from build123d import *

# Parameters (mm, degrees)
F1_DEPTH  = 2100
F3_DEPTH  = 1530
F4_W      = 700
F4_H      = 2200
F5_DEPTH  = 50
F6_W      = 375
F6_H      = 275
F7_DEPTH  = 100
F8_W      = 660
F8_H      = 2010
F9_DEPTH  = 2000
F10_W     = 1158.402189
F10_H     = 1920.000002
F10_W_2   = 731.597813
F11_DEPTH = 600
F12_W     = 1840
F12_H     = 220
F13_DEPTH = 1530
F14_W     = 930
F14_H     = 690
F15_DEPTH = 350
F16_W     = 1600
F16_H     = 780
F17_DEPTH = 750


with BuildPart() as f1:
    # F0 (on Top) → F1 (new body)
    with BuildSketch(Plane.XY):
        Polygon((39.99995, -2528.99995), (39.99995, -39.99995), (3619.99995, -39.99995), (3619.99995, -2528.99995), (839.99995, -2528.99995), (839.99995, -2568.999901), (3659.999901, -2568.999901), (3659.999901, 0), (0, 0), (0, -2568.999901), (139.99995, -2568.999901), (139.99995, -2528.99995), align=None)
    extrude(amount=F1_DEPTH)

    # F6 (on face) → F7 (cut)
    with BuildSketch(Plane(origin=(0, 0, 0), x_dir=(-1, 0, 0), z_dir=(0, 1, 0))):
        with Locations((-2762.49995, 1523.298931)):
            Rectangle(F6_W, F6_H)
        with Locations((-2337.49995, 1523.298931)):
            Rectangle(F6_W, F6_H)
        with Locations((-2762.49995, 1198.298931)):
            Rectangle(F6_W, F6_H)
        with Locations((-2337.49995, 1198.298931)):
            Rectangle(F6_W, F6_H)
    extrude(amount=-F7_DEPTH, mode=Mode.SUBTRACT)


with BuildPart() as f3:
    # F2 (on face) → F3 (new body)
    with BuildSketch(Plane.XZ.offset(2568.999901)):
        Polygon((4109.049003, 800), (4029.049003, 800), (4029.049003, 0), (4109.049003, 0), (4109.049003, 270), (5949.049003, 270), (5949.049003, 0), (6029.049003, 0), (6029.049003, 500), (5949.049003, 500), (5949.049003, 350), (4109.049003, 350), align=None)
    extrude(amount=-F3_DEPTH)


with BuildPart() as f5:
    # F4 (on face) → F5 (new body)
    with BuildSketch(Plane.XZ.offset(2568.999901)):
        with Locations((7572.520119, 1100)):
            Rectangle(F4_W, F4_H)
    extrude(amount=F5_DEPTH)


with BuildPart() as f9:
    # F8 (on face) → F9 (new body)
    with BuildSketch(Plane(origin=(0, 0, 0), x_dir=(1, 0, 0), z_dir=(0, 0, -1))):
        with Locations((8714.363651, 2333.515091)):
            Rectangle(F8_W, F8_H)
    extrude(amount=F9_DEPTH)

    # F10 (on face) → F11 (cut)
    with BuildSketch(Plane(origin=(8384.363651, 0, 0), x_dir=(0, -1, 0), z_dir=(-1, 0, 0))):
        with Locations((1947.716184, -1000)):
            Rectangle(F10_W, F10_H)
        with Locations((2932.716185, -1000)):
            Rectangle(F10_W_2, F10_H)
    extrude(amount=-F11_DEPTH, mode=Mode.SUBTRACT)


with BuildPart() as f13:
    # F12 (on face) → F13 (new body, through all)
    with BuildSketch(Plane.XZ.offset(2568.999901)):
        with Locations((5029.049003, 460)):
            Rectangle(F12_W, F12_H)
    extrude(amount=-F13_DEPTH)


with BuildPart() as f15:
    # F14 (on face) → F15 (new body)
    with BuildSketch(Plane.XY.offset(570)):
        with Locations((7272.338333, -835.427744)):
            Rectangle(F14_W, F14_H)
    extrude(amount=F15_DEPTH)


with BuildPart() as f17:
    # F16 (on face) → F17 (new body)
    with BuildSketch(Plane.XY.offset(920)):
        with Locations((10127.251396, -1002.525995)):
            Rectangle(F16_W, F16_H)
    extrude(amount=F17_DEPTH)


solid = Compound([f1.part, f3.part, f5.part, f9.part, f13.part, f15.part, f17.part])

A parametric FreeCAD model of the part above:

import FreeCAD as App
import Part
import Sketcher
from FreeCAD import Vector

doc = App.newDocument("Part")
body = doc.addObject("PartDesign::Body", "Body")

sketch1 = body.newObject("Sketcher::SketchObject", "Sketch")
sketch1.AttachmentSupport = (doc.getObject("XY_Plane"), [""])
sketch1.MapMode = "FlatFace"
sketch1.addGeometry(Part.LineSegment(Vector(39.99995, -2528.99995, 0), Vector(39.99995, -39.99995, 0)), False)
sketch1.addGeometry(Part.LineSegment(Vector(39.99995, -39.99995, 0), Vector(3619.99995, -39.99995, 0)), False)
sketch1.addGeometry(Part.LineSegment(Vector(3619.99995, -39.99995, 0), Vector(3619.99995, -2528.99995, 0)), False)
sketch1.addGeometry(Part.LineSegment(Vector(3619.99995, -2528.99995, 0), Vector(839.99995, -2528.99995, 0)), False)
sketch1.addGeometry(Part.LineSegment(Vector(839.99995, -2528.99995, 0), Vector(839.99995, -2568.999901, 0)), False)
sketch1.addGeometry(Part.LineSegment(Vector(839.99995, -2568.999901, 0), Vector(3659.999901, -2568.999901, 0)), False)
sketch1.addGeometry(Part.LineSegment(Vector(3659.999901, -2568.999901, 0), Vector(3659.999901, 0, 0)), False)
sketch1.addGeometry(Part.LineSegment(Vector(3659.999901, 0, 0), Vector(0, 0, 0)), False)
sketch1.addGeometry(Part.LineSegment(Vector(0, 0, 0), Vector(0, -2568.999901, 0)), False)
sketch1.addGeometry(Part.LineSegment(Vector(0, -2568.999901, 0), Vector(139.99995, -2568.999901, 0)), False)
sketch1.addGeometry(Part.LineSegment(Vector(139.99995, -2568.999901, 0), Vector(139.99995, -2528.99995, 0)), False)
sketch1.addGeometry(Part.LineSegment(Vector(139.99995, -2528.99995, 0), Vector(39.99995, -2528.99995, 0)), False)
sketch1.addConstraint(Sketcher.Constraint("Coincident", 0, 2, 1, 1))
sketch1.addConstraint(Sketcher.Constraint("Coincident", 1, 2, 2, 1))
sketch1.addConstraint(Sketcher.Constraint("Coincident", 2, 2, 3, 1))
sketch1.addConstraint(Sketcher.Constraint("Coincident", 3, 2, 4, 1))
sketch1.addConstraint(Sketcher.Constraint("Coincident", 4, 2, 5, 1))
sketch1.addConstraint(Sketcher.Constraint("Coincident", 5, 2, 6, 1))
sketch1.addConstraint(Sketcher.Constraint("Coincident", 6, 2, 7, 1))
sketch1.addConstraint(Sketcher.Constraint("Coincident", 7, 2, 8, 1))
sketch1.addConstraint(Sketcher.Constraint("Coincident", 8, 2, 9, 1))
sketch1.addConstraint(Sketcher.Constraint("Coincident", 9, 2, 10, 1))
sketch1.addConstraint(Sketcher.Constraint("Coincident", 10, 2, 11, 1))
sketch1.addConstraint(Sketcher.Constraint("Coincident", 11, 2, 0, 1))
sketch1.addConstraint(Sketcher.Constraint("Vertical", 0))
sketch1.addConstraint(Sketcher.Constraint("Horizontal", 1))
sketch1.addConstraint(Sketcher.Constraint("Vertical", 2))
sketch1.addConstraint(Sketcher.Constraint("Horizontal", 3))
sketch1.addConstraint(Sketcher.Constraint("Vertical", 4))
sketch1.addConstraint(Sketcher.Constraint("Horizontal", 5))
sketch1.addConstraint(Sketcher.Constraint("Vertical", 6))
sketch1.addConstraint(Sketcher.Constraint("Horizontal", 7))
sketch1.addConstraint(Sketcher.Constraint("Vertical", 8))
sketch1.addConstraint(Sketcher.Constraint("Horizontal", 9))
sketch1.addConstraint(Sketcher.Constraint("Vertical", 10))
sketch1.addConstraint(Sketcher.Constraint("Horizontal", 11))
sketch1.addConstraint(Sketcher.Constraint("Coincident", 7, 2, -1, 1))
sketch1.addConstraint(Sketcher.Constraint("Horizontal", 5, 2, 8, 2))
sketch1.addConstraint(Sketcher.Constraint("Horizontal", 3, 2, 10, 2))
sketch1.addConstraint(Sketcher.Constraint("DistanceX", 1, 1, 1, 2, 3580.0))
sketch1.addConstraint(Sketcher.Constraint("DistanceX", 3, 2, 3, 1, 2780.0))
sketch1.addConstraint(Sketcher.Constraint("DistanceX", 11, 2, 11, 1, 100.0))
sketch1.addConstraint(Sketcher.Constraint("DistanceY", 0, 1, 0, 2, 2489.0))
sketch1.addConstraint(Sketcher.Constraint("DistanceX", 7, 2, 7, 1, 3659.999901))
sketch1.addConstraint(Sketcher.Constraint("DistanceY", 6, 1, 6, 2, 2568.999901))
sketch1.addConstraint(Sketcher.Constraint("DistanceX", 5, 1, 5, 2, 2819.999951))
sketch1.addConstraint(Sketcher.Constraint("DistanceY", 4, 2, 4, 1, 39.999951))
pad1 = body.newObject("PartDesign::Pad", "Pad")
pad1.Profile = sketch1
pad1.Length = 2100

sketch2 = body.newObject("Sketcher::SketchObject", "Sketch001")
sketch2.AttachmentSupport = (doc.getObject("XZ_Plane"), [""])
sketch2.MapMode = "FlatFace"
sketch2.addGeometry(Part.LineSegment(Vector(2949.99995, 1660.798931, 0), Vector(2949.99995, 1385.798931, 0)), False)
sketch2.addGeometry(Part.LineSegment(Vector(2949.99995, 1385.798931, 0), Vector(2574.99995, 1385.798931, 0)), False)
sketch2.addGeometry(Part.LineSegment(Vector(2574.99995, 1385.798931, 0), Vector(2574.99995, 1660.798931, 0)), False)
sketch2.addGeometry(Part.LineSegment(Vector(2574.99995, 1660.798931, 0), Vector(2949.99995, 1660.798931, 0)), False)
sketch2.addGeometry(Part.LineSegment(Vector(2524.99995, 1660.798931, 0), Vector(2524.99995, 1385.798931, 0)), False)
sketch2.addGeometry(Part.LineSegment(Vector(2524.99995, 1385.798931, 0), Vector(2149.99995, 1385.798931, 0)), False)
sketch2.addGeometry(Part.LineSegment(Vector(2149.99995, 1385.798931, 0), Vector(2149.99995, 1660.798931, 0)), False)
sketch2.addGeometry(Part.LineSegment(Vector(2149.99995, 1660.798931, 0), Vector(2524.99995, 1660.798931, 0)), False)
sketch2.addGeometry(Part.LineSegment(Vector(2949.99995, 1335.798931, 0), Vector(2949.99995, 1060.798931, 0)), False)
sketch2.addGeometry(Part.LineSegment(Vector(2949.99995, 1060.798931, 0), Vector(2574.99995, 1060.798931, 0)), False)
sketch2.addGeometry(Part.LineSegment(Vector(2574.99995, 1060.798931, 0), Vector(2574.99995, 1335.798931, 0)), False)
sketch2.addGeometry(Part.LineSegment(Vector(2574.99995, 1335.798931, 0), Vector(2949.99995, 1335.798931, 0)), False)
sketch2.addGeometry(Part.LineSegment(Vector(2524.99995, 1335.798931, 0), Vector(2524.99995, 1060.798931, 0)), False)
sketch2.addGeometry(Part.LineSegment(Vector(2524.99995, 1060.798931, 0), Vector(2149.99995, 1060.798931, 0)), False)
sketch2.addGeometry(Part.LineSegment(Vector(2149.99995, 1060.798931, 0), Vector(2149.99995, 1335.798931, 0)), False)
sketch2.addGeometry(Part.LineSegment(Vector(2149.99995, 1335.798931, 0), Vector(2524.99995, 1335.798931, 0)), False)
sketch2.addConstraint(Sketcher.Constraint("Coincident", 0, 2, 1, 1))
sketch2.addConstraint(Sketcher.Constraint("Coincident", 1, 2, 2, 1))
sketch2.addConstraint(Sketcher.Constraint("Coincident", 2, 2, 3, 1))
sketch2.addConstraint(Sketcher.Constraint("Coincident", 3, 2, 0, 1))
sketch2.addConstraint(Sketcher.Constraint("Coincident", 4, 2, 5, 1))
sketch2.addConstraint(Sketcher.Constraint("Coincident", 5, 2, 6, 1))
sketch2.addConstraint(Sketcher.Constraint("Coincident", 6, 2, 7, 1))
sketch2.addConstraint(Sketcher.Constraint("Coincident", 7, 2, 4, 1))
sketch2.addConstraint(Sketcher.Constraint("Coincident", 8, 2, 9, 1))
sketch2.addConstraint(Sketcher.Constraint("Coincident", 9, 2, 10, 1))
sketch2.addConstraint(Sketcher.Constraint("Coincident", 10, 2, 11, 1))
sketch2.addConstraint(Sketcher.Constraint("Coincident", 11, 2, 8, 1))
sketch2.addConstraint(Sketcher.Constraint("Coincident", 12, 2, 13, 1))
sketch2.addConstraint(Sketcher.Constraint("Coincident", 13, 2, 14, 1))
sketch2.addConstraint(Sketcher.Constraint("Coincident", 14, 2, 15, 1))
sketch2.addConstraint(Sketcher.Constraint("Coincident", 15, 2, 12, 1))
sketch2.addConstraint(Sketcher.Constraint("Vertical", 0))
sketch2.addConstraint(Sketcher.Constraint("Horizontal", 1))
sketch2.addConstraint(Sketcher.Constraint("Vertical", 2))
sketch2.addConstraint(Sketcher.Constraint("Horizontal", 3))
sketch2.addConstraint(Sketcher.Constraint("Vertical", 4))
sketch2.addConstraint(Sketcher.Constraint("Horizontal", 5))
sketch2.addConstraint(Sketcher.Constraint("Vertical", 6))
sketch2.addConstraint(Sketcher.Constraint("Horizontal", 7))
sketch2.addConstraint(Sketcher.Constraint("Vertical", 8))
sketch2.addConstraint(Sketcher.Constraint("Horizontal", 9))
sketch2.addConstraint(Sketcher.Constraint("Vertical", 10))
sketch2.addConstraint(Sketcher.Constraint("Horizontal", 11))
sketch2.addConstraint(Sketcher.Constraint("Vertical", 12))
sketch2.addConstraint(Sketcher.Constraint("Horizontal", 13))
sketch2.addConstraint(Sketcher.Constraint("Vertical", 14))
sketch2.addConstraint(Sketcher.Constraint("Horizontal", 15))
sketch2.addConstraint(Sketcher.Constraint("Horizontal", 1, 2, 4, 2))
sketch2.addConstraint(Sketcher.Constraint("Horizontal", 3, 2, 6, 2))
sketch2.addConstraint(Sketcher.Constraint("Horizontal", 9, 2, 12, 2))
sketch2.addConstraint(Sketcher.Constraint("Horizontal", 11, 2, 14, 2))
sketch2.addConstraint(Sketcher.Constraint("Vertical", 3, 2, 8, 2))
sketch2.addConstraint(Sketcher.Constraint("Vertical", 2, 2, 9, 2))
sketch2.addConstraint(Sketcher.Constraint("Vertical", 7, 2, 12, 2))
sketch2.addConstraint(Sketcher.Constraint("Vertical", 6, 2, 13, 2))
sketch2.addConstraint(Sketcher.Constraint("Equal", 3, 5))
sketch2.addConstraint(Sketcher.Constraint("Equal", 6, 8))
sketch2.addConstraint(Sketcher.Constraint("DistanceX", 1, 2, 1, 1, 375.0))
sketch2.addConstraint(Sketcher.Constraint("DistanceY", 0, 2, 0, 1, 275.0))
sketch2.addConstraint(Sketcher.Constraint("DistanceX", 4, 2, 1, 2, 50.0))
sketch2.addConstraint(Sketcher.Constraint("DistanceY", 8, 2, 0, 2, 325.0))
sketch2.addConstraint(Sketcher.Constraint("DistanceX", -1, 1, 0, 2, 2949.99995))
sketch2.addConstraint(Sketcher.Constraint("DistanceY", -1, 1, 0, 2, 1385.798931))
pocket1 = body.newObject("PartDesign::Pocket", "Pocket")
pocket1.Profile = sketch2
pocket1.Length = 100
pocket1.Reversed = True
body2 = doc.addObject("PartDesign::Body", "Body001")

sketch3 = body2.newObject("Sketcher::SketchObject", "Sketch002")
sketch3.AttachmentSupport = (doc.getObject("XZ_Plane001"), [""])
sketch3.MapMode = "FlatFace"
sketch3.AttachmentOffset = App.Placement(Vector(0, 0, 2568.999901), App.Rotation())
sketch3.addGeometry(Part.LineSegment(Vector(4109.049003, 800, 0), Vector(4029.049003, 800, 0)), False)
sketch3.addGeometry(Part.LineSegment(Vector(4029.049003, 800, 0), Vector(4029.049003, 0, 0)), False)
sketch3.addGeometry(Part.LineSegment(Vector(4029.049003, 0, 0), Vector(4109.049003, 0, 0)), False)
sketch3.addGeometry(Part.LineSegment(Vector(4109.049003, 0, 0), Vector(4109.049003, 270, 0)), False)
sketch3.addGeometry(Part.LineSegment(Vector(4109.049003, 270, 0), Vector(5949.049003, 270, 0)), False)
sketch3.addGeometry(Part.LineSegment(Vector(5949.049003, 270, 0), Vector(5949.049003, 0, 0)), False)
sketch3.addGeometry(Part.LineSegment(Vector(5949.049003, 0, 0), Vector(6029.049003, 0, 0)), False)
sketch3.addGeometry(Part.LineSegment(Vector(6029.049003, 0, 0), Vector(6029.049003, 500, 0)), False)
sketch3.addGeometry(Part.LineSegment(Vector(6029.049003, 500, 0), Vector(5949.049003, 500, 0)), False)
sketch3.addGeometry(Part.LineSegment(Vector(5949.049003, 500, 0), Vector(5949.049003, 350, 0)), False)
sketch3.addGeometry(Part.LineSegment(Vector(5949.049003, 350, 0), Vector(4109.049003, 350, 0)), False)
sketch3.addGeometry(Part.LineSegment(Vector(4109.049003, 350, 0), Vector(4109.049003, 800, 0)), False)
sketch3.addConstraint(Sketcher.Constraint("Coincident", 0, 2, 1, 1))
sketch3.addConstraint(Sketcher.Constraint("Coincident", 1, 2, 2, 1))
sketch3.addConstraint(Sketcher.Constraint("Coincident", 2, 2, 3, 1))
sketch3.addConstraint(Sketcher.Constraint("Coincident", 3, 2, 4, 1))
sketch3.addConstraint(Sketcher.Constraint("Coincident", 4, 2, 5, 1))
sketch3.addConstraint(Sketcher.Constraint("Coincident", 5, 2, 6, 1))
sketch3.addConstraint(Sketcher.Constraint("Coincident", 6, 2, 7, 1))
sketch3.addConstraint(Sketcher.Constraint("Coincident", 7, 2, 8, 1))
sketch3.addConstraint(Sketcher.Constraint("Coincident", 8, 2, 9, 1))
sketch3.addConstraint(Sketcher.Constraint("Coincident", 9, 2, 10, 1))
sketch3.addConstraint(Sketcher.Constraint("Coincident", 10, 2, 11, 1))
sketch3.addConstraint(Sketcher.Constraint("Coincident", 11, 2, 0, 1))
sketch3.addConstraint(Sketcher.Constraint("Horizontal", 0))
sketch3.addConstraint(Sketcher.Constraint("Vertical", 1))
sketch3.addConstraint(Sketcher.Constraint("Horizontal", 2))
sketch3.addConstraint(Sketcher.Constraint("Vertical", 3))
sketch3.addConstraint(Sketcher.Constraint("Horizontal", 4))
sketch3.addConstraint(Sketcher.Constraint("Vertical", 5))
sketch3.addConstraint(Sketcher.Constraint("Horizontal", 6))
sketch3.addConstraint(Sketcher.Constraint("Vertical", 7))
sketch3.addConstraint(Sketcher.Constraint("Horizontal", 8))
sketch3.addConstraint(Sketcher.Constraint("Vertical", 9))
sketch3.addConstraint(Sketcher.Constraint("Horizontal", 10))
sketch3.addConstraint(Sketcher.Constraint("Vertical", 11))
sketch3.addConstraint(Sketcher.Constraint("PointOnObject", 1, 2, -1))
sketch3.addConstraint(Sketcher.Constraint("PointOnObject", 5, 2, -1))
sketch3.addConstraint(Sketcher.Constraint("Vertical", 5, 2, 8, 2))
sketch3.addConstraint(Sketcher.Constraint("Vertical", 3, 2, 10, 2))
sketch3.addConstraint(Sketcher.Constraint("Equal", 2, 6))
sketch3.addConstraint(Sketcher.Constraint("DistanceX", 0, 2, 0, 1, 80.0))
sketch3.addConstraint(Sketcher.Constraint("DistanceX", 4, 1, 4, 2, 1840.0))
sketch3.addConstraint(Sketcher.Constraint("DistanceY", 1, 2, 1, 1, 800.0))
sketch3.addConstraint(Sketcher.Constraint("DistanceY", 3, 1, 3, 2, 270.0))
sketch3.addConstraint(Sketcher.Constraint("DistanceY", 7, 1, 7, 2, 500.0))
sketch3.addConstraint(Sketcher.Constraint("DistanceY", 9, 2, 9, 1, 150.0))
sketch3.addConstraint(Sketcher.Constraint("DistanceX", -1, 1, 0, 2, 4029.049003))
pad2 = body2.newObject("PartDesign::Pad", "Pad001")
pad2.Profile = sketch3
pad2.Length = 1530
pad2.Reversed = True
body3 = doc.addObject("PartDesign::Body", "Body002")

sketch4 = body3.newObject("Sketcher::SketchObject", "Sketch003")
sketch4.AttachmentSupport = (doc.getObject("XZ_Plane002"), [""])
sketch4.MapMode = "FlatFace"
sketch4.AttachmentOffset = App.Placement(Vector(0, 0, 2568.999901), App.Rotation())
sketch4.addGeometry(Part.LineSegment(Vector(7222.520119, 2200, 0), Vector(7222.520119, 0, 0)), False)
sketch4.addGeometry(Part.LineSegment(Vector(7222.520119, 0, 0), Vector(7922.520119, 0, 0)), False)
sketch4.addGeometry(Part.LineSegment(Vector(7922.520119, 0, 0), Vector(7922.520119, 2200, 0)), False)
sketch4.addGeometry(Part.LineSegment(Vector(7922.520119, 2200, 0), Vector(7222.520119, 2200, 0)), False)
sketch4.addConstraint(Sketcher.Constraint("Coincident", 0, 2, 1, 1))
sketch4.addConstraint(Sketcher.Constraint("Coincident", 1, 2, 2, 1))
sketch4.addConstraint(Sketcher.Constraint("Coincident", 2, 2, 3, 1))
sketch4.addConstraint(Sketcher.Constraint("Coincident", 3, 2, 0, 1))
sketch4.addConstraint(Sketcher.Constraint("Vertical", 0))
sketch4.addConstraint(Sketcher.Constraint("Horizontal", 1))
sketch4.addConstraint(Sketcher.Constraint("Vertical", 2))
sketch4.addConstraint(Sketcher.Constraint("Horizontal", 3))
sketch4.addConstraint(Sketcher.Constraint("PointOnObject", 0, 2, -1))
sketch4.addConstraint(Sketcher.Constraint("DistanceX", 1, 1, 1, 2, 700.0))
sketch4.addConstraint(Sketcher.Constraint("DistanceY", 0, 2, 0, 1, 2200.0))
sketch4.addConstraint(Sketcher.Constraint("DistanceX", -1, 1, 0, 2, 7222.520119))
pad3 = body3.newObject("PartDesign::Pad", "Pad002")
pad3.Profile = sketch4
pad3.Length = 50
body4 = doc.addObject("PartDesign::Body", "Body003")

sketch5 = body4.newObject("Sketcher::SketchObject", "Sketch004")
sketch5.AttachmentSupport = (doc.getObject("XY_Plane003"), [""])
sketch5.MapMode = "FlatFace"
sketch5.addGeometry(Part.LineSegment(Vector(8384.363651, -3338.515091, 0), Vector(8384.363651, -1328.515091, 0)), False)
sketch5.addGeometry(Part.LineSegment(Vector(8384.363651, -1328.515091, 0), Vector(9044.363651, -1328.515091, 0)), False)
sketch5.addGeometry(Part.LineSegment(Vector(9044.363651, -1328.515091, 0), Vector(9044.363651, -3338.515091, 0)), False)
sketch5.addGeometry(Part.LineSegment(Vector(9044.363651, -3338.515091, 0), Vector(8384.363651, -3338.515091, 0)), False)
sketch5.addConstraint(Sketcher.Constraint("Coincident", 0, 2, 1, 1))
sketch5.addConstraint(Sketcher.Constraint("Coincident", 1, 2, 2, 1))
sketch5.addConstraint(Sketcher.Constraint("Coincident", 2, 2, 3, 1))
sketch5.addConstraint(Sketcher.Constraint("Coincident", 3, 2, 0, 1))
sketch5.addConstraint(Sketcher.Constraint("Vertical", 0))
sketch5.addConstraint(Sketcher.Constraint("Horizontal", 1))
sketch5.addConstraint(Sketcher.Constraint("Vertical", 2))
sketch5.addConstraint(Sketcher.Constraint("Horizontal", 3))
sketch5.addConstraint(Sketcher.Constraint("DistanceX", 1, 1, 1, 2, 660.0))
sketch5.addConstraint(Sketcher.Constraint("DistanceY", 0, 1, 0, 2, 2010.0))
sketch5.addConstraint(Sketcher.Constraint("DistanceX", -1, 1, 0, 2, 8384.363651))
sketch5.addConstraint(Sketcher.Constraint("DistanceY", 0, 2, -1, 1, 1328.515091))
pad4 = body4.newObject("PartDesign::Pad", "Pad003")
pad4.Profile = sketch5
pad4.Length = 2000
pad4.Reversed = True

sketch6 = body4.newObject("Sketcher::SketchObject", "Sketch005")
sketch6.AttachmentSupport = (doc.getObject("YZ_Plane003"), [""])
sketch6.MapMode = "FlatFace"
sketch6.AttachmentOffset = App.Placement(Vector(0, 0, 8384.363651), App.Rotation())
sketch6.addGeometry(Part.LineSegment(Vector(-1368.515089, -39.999999, 0), Vector(-1368.515089, -1960.000001, 0)), False)
sketch6.addGeometry(Part.LineSegment(Vector(-1368.515089, -1960.000001, 0), Vector(-2526.917279, -1960.000001, 0)), False)
sketch6.addGeometry(Part.LineSegment(Vector(-2526.917279, -1960.000001, 0), Vector(-2526.917279, -39.999999, 0)), False)
sketch6.addGeometry(Part.LineSegment(Vector(-2526.917279, -39.999999, 0), Vector(-1368.515089, -39.999999, 0)), False)
sketch6.addGeometry(Part.LineSegment(Vector(-2566.917279, -39.999999, 0), Vector(-2566.917279, -1960.000001, 0)), False)
sketch6.addGeometry(Part.LineSegment(Vector(-2566.917279, -1960.000001, 0), Vector(-3298.515091, -1960.000001, 0)), False)
sketch6.addGeometry(Part.LineSegment(Vector(-3298.515091, -1960.000001, 0), Vector(-3298.515091, -39.999999, 0)), False)
sketch6.addGeometry(Part.LineSegment(Vector(-3298.515091, -39.999999, 0), Vector(-2566.917279, -39.999999, 0)), False)
sketch6.addConstraint(Sketcher.Constraint("Coincident", 0, 2, 1, 1))
sketch6.addConstraint(Sketcher.Constraint("Coincident", 1, 2, 2, 1))
sketch6.addConstraint(Sketcher.Constraint("Coincident", 2, 2, 3, 1))
sketch6.addConstraint(Sketcher.Constraint("Coincident", 3, 2, 0, 1))
sketch6.addConstraint(Sketcher.Constraint("Coincident", 4, 2, 5, 1))
sketch6.addConstraint(Sketcher.Constraint("Coincident", 5, 2, 6, 1))
sketch6.addConstraint(Sketcher.Constraint("Coincident", 6, 2, 7, 1))
sketch6.addConstraint(Sketcher.Constraint("Coincident", 7, 2, 4, 1))
sketch6.addConstraint(Sketcher.Constraint("Vertical", 0))
sketch6.addConstraint(Sketcher.Constraint("Horizontal", 1))
sketch6.addConstraint(Sketcher.Constraint("Vertical", 2))
sketch6.addConstraint(Sketcher.Constraint("Horizontal", 3))
sketch6.addConstraint(Sketcher.Constraint("Vertical", 4))
sketch6.addConstraint(Sketcher.Constraint("Horizontal", 5))
sketch6.addConstraint(Sketcher.Constraint("Vertical", 6))
sketch6.addConstraint(Sketcher.Constraint("Horizontal", 7))
sketch6.addConstraint(Sketcher.Constraint("Horizontal", 1, 2, 4, 2))
sketch6.addConstraint(Sketcher.Constraint("Horizontal", 3, 2, 6, 2))
sketch6.addConstraint(Sketcher.Constraint("DistanceY", 0, 2, -1, 1, 1960.000001))
sketch6.addConstraint(Sketcher.Constraint("DistanceY", 2, 2, -1, 1, 39.999999))
sketch6.addConstraint(Sketcher.Constraint("DistanceX", 4, 2, 1, 2, 40.0))
sketch6.addConstraint(Sketcher.Constraint("DistanceX", 5, 2, 0, 2, 1930.000002))
sketch6.addConstraint(Sketcher.Constraint("DistanceX", 1, 2, 1, 1, 1158.402189))
sketch6.addConstraint(Sketcher.Constraint("DistanceX", 0, 2, -1, 1, 1368.515089))
pocket2 = body4.newObject("PartDesign::Pocket", "Pocket001")
pocket2.Profile = sketch6
pocket2.Length = 600
pocket2.Reversed = True
body5 = doc.addObject("PartDesign::Body", "Body004")

sketch7 = body5.newObject("Sketcher::SketchObject", "Sketch006")
sketch7.AttachmentSupport = (doc.getObject("XZ_Plane004"), [""])
sketch7.MapMode = "FlatFace"
sketch7.AttachmentOffset = App.Placement(Vector(0, 0, 2568.999901), App.Rotation())
sketch7.addGeometry(Part.LineSegment(Vector(4109.049003, 570, 0), Vector(4109.049003, 350, 0)), False)
sketch7.addGeometry(Part.LineSegment(Vector(4109.049003, 350, 0), Vector(5949.049003, 350, 0)), False)
sketch7.addGeometry(Part.LineSegment(Vector(5949.049003, 350, 0), Vector(5949.049003, 570, 0)), False)
sketch7.addGeometry(Part.LineSegment(Vector(5949.049003, 570, 0), Vector(4109.049003, 570, 0)), False)
sketch7.addConstraint(Sketcher.Constraint("Coincident", 0, 2, 1, 1))
sketch7.addConstraint(Sketcher.Constraint("Coincident", 1, 2, 2, 1))
sketch7.addConstraint(Sketcher.Constraint("Coincident", 2, 2, 3, 1))
sketch7.addConstraint(Sketcher.Constraint("Coincident", 3, 2, 0, 1))
sketch7.addConstraint(Sketcher.Constraint("Vertical", 0))
sketch7.addConstraint(Sketcher.Constraint("Horizontal", 1))
sketch7.addConstraint(Sketcher.Constraint("Vertical", 2))
sketch7.addConstraint(Sketcher.Constraint("Horizontal", 3))
sketch7.addConstraint(Sketcher.Constraint("DistanceX", 1, 1, 1, 2, 1840.0))
sketch7.addConstraint(Sketcher.Constraint("DistanceY", 0, 2, 0, 1, 220.0))
sketch7.addConstraint(Sketcher.Constraint("DistanceY", -1, 1, 0, 2, 350.0))
sketch7.addConstraint(Sketcher.Constraint("DistanceX", -1, 1, 0, 2, 4109.049003))
pad5 = body5.newObject("PartDesign::Pad", "Pad004")
pad5.Profile = sketch7
pad5.Length = 1530
pad5.Reversed = True
body6 = doc.addObject("PartDesign::Body", "Body005")

sketch8 = body6.newObject("Sketcher::SketchObject", "Sketch007")
sketch8.AttachmentSupport = (doc.getObject("XY_Plane005"), [""])
sketch8.MapMode = "FlatFace"
sketch8.AttachmentOffset = App.Placement(Vector(0, 0, 570), App.Rotation())
sketch8.addGeometry(Part.LineSegment(Vector(6807.338333, -490.427744, 0), Vector(6807.338333, -1180.427744, 0)), False)
sketch8.addGeometry(Part.LineSegment(Vector(6807.338333, -1180.427744, 0), Vector(7737.338333, -1180.427744, 0)), False)
sketch8.addGeometry(Part.LineSegment(Vector(7737.338333, -1180.427744, 0), Vector(7737.338333, -490.427744, 0)), False)
sketch8.addGeometry(Part.LineSegment(Vector(7737.338333, -490.427744, 0), Vector(6807.338333, -490.427744, 0)), False)
sketch8.addConstraint(Sketcher.Constraint("Coincident", 0, 2, 1, 1))
sketch8.addConstraint(Sketcher.Constraint("Coincident", 1, 2, 2, 1))
sketch8.addConstraint(Sketcher.Constraint("Coincident", 2, 2, 3, 1))
sketch8.addConstraint(Sketcher.Constraint("Coincident", 3, 2, 0, 1))
sketch8.addConstraint(Sketcher.Constraint("Vertical", 0))
sketch8.addConstraint(Sketcher.Constraint("Horizontal", 1))
sketch8.addConstraint(Sketcher.Constraint("Vertical", 2))
sketch8.addConstraint(Sketcher.Constraint("Horizontal", 3))
sketch8.addConstraint(Sketcher.Constraint("DistanceX", 1, 1, 1, 2, 930.0))
sketch8.addConstraint(Sketcher.Constraint("DistanceY", 0, 2, 0, 1, 690.0))
sketch8.addConstraint(Sketcher.Constraint("DistanceX", -1, 1, 0, 2, 6807.338333))
sketch8.addConstraint(Sketcher.Constraint("DistanceY", 0, 2, -1, 1, 1180.427744))
pad6 = body6.newObject("PartDesign::Pad", "Pad005")
pad6.Profile = sketch8
pad6.Length = 350
body7 = doc.addObject("PartDesign::Body", "Body006")

sketch9 = body7.newObject("Sketcher::SketchObject", "Sketch008")
sketch9.AttachmentSupport = (doc.getObject("XY_Plane006"), [""])
sketch9.MapMode = "FlatFace"
sketch9.AttachmentOffset = App.Placement(Vector(0, 0, 920), App.Rotation())
sketch9.addGeometry(Part.LineSegment(Vector(9327.251396, -612.525995, 0), Vector(9327.251396, -1392.525995, 0)), False)
sketch9.addGeometry(Part.LineSegment(Vector(9327.251396, -1392.525995, 0), Vector(10927.251396, -1392.525995, 0)), False)
sketch9.addGeometry(Part.LineSegment(Vector(10927.251396, -1392.525995, 0), Vector(10927.251396, -612.525995, 0)), False)
sketch9.addGeometry(Part.LineSegment(Vector(10927.251396, -612.525995, 0), Vector(9327.251396, -612.525995, 0)), False)
sketch9.addConstraint(Sketcher.Constraint("Coincident", 0, 2, 1, 1))
sketch9.addConstraint(Sketcher.Constraint("Coincident", 1, 2, 2, 1))
sketch9.addConstraint(Sketcher.Constraint("Coincident", 2, 2, 3, 1))
sketch9.addConstraint(Sketcher.Constraint("Coincident", 3, 2, 0, 1))
sketch9.addConstraint(Sketcher.Constraint("Vertical", 0))
sketch9.addConstraint(Sketcher.Constraint("Horizontal", 1))
sketch9.addConstraint(Sketcher.Constraint("Vertical", 2))
sketch9.addConstraint(Sketcher.Constraint("Horizontal", 3))
sketch9.addConstraint(Sketcher.Constraint("DistanceX", 1, 1, 1, 2, 1600.0))
sketch9.addConstraint(Sketcher.Constraint("DistanceY", 0, 2, 0, 1, 780.0))
sketch9.addConstraint(Sketcher.Constraint("DistanceX", -1, 1, 0, 2, 9327.251396))
sketch9.addConstraint(Sketcher.Constraint("DistanceY", 0, 2, -1, 1, 1392.525995))
pad7 = body7.newObject("PartDesign::Pad", "Pad006")
pad7.Profile = sketch9
pad7.Length = 750

doc.recompute()
